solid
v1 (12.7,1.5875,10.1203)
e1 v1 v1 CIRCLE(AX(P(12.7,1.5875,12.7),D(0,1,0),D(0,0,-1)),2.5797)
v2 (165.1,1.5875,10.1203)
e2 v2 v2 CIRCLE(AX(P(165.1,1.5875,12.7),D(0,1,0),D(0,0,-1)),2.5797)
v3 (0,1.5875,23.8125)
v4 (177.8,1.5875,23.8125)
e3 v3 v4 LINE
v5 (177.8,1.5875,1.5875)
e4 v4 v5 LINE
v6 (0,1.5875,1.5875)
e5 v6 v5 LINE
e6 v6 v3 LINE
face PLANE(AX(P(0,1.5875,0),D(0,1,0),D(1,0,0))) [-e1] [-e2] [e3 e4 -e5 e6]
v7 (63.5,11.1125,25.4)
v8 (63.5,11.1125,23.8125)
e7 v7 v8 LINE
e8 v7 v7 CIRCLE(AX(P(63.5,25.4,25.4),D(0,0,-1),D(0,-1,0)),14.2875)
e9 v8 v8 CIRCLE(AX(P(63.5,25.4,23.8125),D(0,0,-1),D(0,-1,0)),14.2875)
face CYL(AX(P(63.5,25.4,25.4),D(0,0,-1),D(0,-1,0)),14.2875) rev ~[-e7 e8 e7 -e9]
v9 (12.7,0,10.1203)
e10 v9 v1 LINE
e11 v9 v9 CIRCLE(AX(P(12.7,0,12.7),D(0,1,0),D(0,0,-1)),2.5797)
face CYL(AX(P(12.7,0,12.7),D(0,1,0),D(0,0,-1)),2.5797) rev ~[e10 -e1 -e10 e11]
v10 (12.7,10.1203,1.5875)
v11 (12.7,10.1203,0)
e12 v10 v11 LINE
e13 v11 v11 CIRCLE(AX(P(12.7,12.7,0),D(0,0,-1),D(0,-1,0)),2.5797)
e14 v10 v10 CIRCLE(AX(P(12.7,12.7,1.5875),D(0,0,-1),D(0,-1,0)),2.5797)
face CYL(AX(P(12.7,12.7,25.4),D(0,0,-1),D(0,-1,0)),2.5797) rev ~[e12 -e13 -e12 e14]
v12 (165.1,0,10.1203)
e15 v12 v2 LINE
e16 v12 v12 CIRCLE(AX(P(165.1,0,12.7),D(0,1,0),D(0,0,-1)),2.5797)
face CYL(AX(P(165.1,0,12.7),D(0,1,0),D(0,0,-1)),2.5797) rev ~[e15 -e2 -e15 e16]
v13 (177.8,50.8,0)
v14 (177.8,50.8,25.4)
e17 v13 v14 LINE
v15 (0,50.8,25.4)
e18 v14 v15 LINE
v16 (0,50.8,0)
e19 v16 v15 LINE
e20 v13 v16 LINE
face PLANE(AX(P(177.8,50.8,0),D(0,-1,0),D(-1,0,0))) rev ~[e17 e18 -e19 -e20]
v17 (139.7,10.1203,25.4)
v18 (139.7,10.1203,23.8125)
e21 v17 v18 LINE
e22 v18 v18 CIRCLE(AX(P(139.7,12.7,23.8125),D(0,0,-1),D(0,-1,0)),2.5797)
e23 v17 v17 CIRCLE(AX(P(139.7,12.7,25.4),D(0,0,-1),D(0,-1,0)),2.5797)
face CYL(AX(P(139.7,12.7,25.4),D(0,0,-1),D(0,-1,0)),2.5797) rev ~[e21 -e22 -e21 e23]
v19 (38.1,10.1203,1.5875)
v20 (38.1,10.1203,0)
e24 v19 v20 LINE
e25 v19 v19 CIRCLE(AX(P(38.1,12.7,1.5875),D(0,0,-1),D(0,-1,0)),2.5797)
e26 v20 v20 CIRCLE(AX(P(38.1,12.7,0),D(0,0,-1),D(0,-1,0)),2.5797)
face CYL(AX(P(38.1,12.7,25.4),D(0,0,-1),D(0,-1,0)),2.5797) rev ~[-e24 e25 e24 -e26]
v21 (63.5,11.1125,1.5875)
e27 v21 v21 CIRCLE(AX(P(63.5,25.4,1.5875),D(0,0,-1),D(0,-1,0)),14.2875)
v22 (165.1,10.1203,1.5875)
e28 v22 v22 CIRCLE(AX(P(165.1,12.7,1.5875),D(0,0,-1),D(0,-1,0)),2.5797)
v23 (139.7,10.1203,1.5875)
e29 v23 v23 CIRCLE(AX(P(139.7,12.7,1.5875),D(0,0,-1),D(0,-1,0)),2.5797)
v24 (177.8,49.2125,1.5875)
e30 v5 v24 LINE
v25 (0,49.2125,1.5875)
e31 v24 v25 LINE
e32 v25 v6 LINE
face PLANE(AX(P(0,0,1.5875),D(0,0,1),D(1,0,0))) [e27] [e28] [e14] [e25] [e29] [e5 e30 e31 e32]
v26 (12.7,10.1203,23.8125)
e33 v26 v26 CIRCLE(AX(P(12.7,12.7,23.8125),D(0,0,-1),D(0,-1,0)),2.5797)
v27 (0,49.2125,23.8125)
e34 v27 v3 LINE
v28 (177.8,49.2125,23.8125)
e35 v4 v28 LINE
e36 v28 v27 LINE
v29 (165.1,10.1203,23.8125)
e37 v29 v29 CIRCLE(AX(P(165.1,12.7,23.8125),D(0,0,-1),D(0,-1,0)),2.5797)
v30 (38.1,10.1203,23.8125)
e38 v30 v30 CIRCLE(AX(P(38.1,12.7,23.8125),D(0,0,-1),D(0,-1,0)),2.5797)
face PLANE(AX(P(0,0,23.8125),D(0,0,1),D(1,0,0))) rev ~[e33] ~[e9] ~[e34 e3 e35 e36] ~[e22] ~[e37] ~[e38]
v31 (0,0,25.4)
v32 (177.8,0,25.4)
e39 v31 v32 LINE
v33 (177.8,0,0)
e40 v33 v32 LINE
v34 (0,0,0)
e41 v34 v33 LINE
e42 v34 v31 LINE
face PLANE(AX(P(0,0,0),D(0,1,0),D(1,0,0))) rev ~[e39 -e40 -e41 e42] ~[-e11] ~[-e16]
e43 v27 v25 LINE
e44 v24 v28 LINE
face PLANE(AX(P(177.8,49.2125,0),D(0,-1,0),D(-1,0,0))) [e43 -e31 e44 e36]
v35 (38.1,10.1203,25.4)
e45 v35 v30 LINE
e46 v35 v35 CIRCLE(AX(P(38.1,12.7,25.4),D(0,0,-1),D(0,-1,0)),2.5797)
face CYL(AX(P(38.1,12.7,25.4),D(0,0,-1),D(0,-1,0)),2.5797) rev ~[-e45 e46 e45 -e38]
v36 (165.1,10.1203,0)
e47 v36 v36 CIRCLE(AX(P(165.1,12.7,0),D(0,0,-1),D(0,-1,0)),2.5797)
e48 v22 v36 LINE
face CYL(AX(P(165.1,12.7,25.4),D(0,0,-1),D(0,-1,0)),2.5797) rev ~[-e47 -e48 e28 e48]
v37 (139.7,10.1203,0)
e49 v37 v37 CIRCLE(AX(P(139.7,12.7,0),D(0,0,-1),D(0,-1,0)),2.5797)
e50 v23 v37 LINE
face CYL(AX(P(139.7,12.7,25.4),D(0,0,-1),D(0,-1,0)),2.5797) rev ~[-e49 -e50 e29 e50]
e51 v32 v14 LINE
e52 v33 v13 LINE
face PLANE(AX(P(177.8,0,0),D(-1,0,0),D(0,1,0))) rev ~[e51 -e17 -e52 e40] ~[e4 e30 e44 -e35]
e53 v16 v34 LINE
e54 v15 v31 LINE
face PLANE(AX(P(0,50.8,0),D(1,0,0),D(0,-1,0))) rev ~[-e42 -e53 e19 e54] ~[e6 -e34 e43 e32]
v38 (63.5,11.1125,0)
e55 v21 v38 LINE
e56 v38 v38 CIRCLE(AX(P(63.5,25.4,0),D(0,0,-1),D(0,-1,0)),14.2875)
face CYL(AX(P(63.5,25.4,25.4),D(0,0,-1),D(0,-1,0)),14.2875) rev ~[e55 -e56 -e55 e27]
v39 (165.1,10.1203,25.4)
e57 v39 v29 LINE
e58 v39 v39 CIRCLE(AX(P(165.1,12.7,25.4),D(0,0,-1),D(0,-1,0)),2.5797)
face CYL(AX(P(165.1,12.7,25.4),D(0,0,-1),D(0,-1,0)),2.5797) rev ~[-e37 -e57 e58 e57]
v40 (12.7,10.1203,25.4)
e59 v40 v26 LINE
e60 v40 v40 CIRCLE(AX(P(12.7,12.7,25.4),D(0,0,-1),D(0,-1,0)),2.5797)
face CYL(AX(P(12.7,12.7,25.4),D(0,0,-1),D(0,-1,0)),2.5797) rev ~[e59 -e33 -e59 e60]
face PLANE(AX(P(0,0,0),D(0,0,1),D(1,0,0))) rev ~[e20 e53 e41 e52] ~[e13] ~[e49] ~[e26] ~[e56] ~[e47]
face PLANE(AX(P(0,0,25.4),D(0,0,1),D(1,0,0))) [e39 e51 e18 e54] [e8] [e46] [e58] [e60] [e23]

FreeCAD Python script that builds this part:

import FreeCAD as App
import Part
import Sketcher
from FreeCAD import Vector
Q = App.Units.Quantity


def faces_at(feature, points):
    """Names of the faces that lie closest to the given points."""
    faces = feature.Shape.Faces
    near = lambda p: min(range(len(faces)), key=lambda i: faces[i].distToShape(Part.Vertex(*p))[0])
    return sorted({f"Face{near(p) + 1}" for p in points})

doc = App.newDocument("Part")
body = doc.addObject("PartDesign::Body", "Body")

sketch1 = doc.addObject("Sketcher::SketchObject", "Sketch")
body.addObject(sketch1)
sketch1.AttachmentSupport = (doc.XY_Plane, [""])
sketch1.MapMode = "FlatFace"
sketch1.addGeometry(Part.LineSegment(Vector(0, 51, 0), Vector(0, 0, 0)), False)
sketch1.addGeometry(Part.LineSegment(Vector(0, 0, 0), Vector(178, 0, 0)), False)
sketch1.addGeometry(Part.LineSegment(Vector(178, 0, 0), Vector(178, 51, 0)), False)
sketch1.addGeometry(Part.LineSegment(Vector(178, 51, 0), Vector(0, 51, 0)), False)
sketch1.addConstraint(Sketcher.Constraint("Coincident", 0, 2, 1, 1))
sketch1.addConstraint(Sketcher.Constraint("Coincident", 1, 2, 2, 1))
sketch1.addConstraint(Sketcher.Constraint("Coincident", 2, 2, 3, 1))
sketch1.addConstraint(Sketcher.Constraint("Coincident", 3, 2, 0, 1))
sketch1.addConstraint(Sketcher.Constraint("Vertical", 0))
sketch1.addConstraint(Sketcher.Constraint("Horizontal", 1))
sketch1.addConstraint(Sketcher.Constraint("Vertical", 2))
sketch1.addConstraint(Sketcher.Constraint("Horizontal", 3))
sketch1.addConstraint(Sketcher.Constraint("Coincident", 0, 2, -1, 1))
sketch1.addConstraint(Sketcher.Constraint("DistanceX", 1, 1, 1, 2, Q("7 in")))
sketch1.addConstraint(Sketcher.Constraint("DistanceY", 0, 2, 0, 1, Q("2 in")))
pad1 = doc.addObject("PartDesign::Pad", "Pad")
body.addObject(pad1)
pad1.Profile = sketch1
pad1.Length = Q("1 in")
doc.recompute()

thickness = doc.addObject("PartDesign::Thickness", "Thickness")
body.addObject(thickness)
thickness.Base = (pad1, faces_at(pad1, [(0, 33.867, 16.933), (177.8, 16.933, 16.933)]))
thickness.Value = Q("0.0625 in")
thickness.Reversed = True
thickness.Join = "Intersection"

sketch2 = doc.addObject("Sketcher::SketchObject", "Sketch001")
body.addObject(sketch2)
sketch2.AttachmentSupport = (doc.XY_Plane, [""])
sketch2.MapMode = "FlatFace"
sketch2.AttachmentOffset = App.Placement(Vector(0, 0, 1 * 25.4), App.Rotation())
sketch2.addGeometry(Part.Circle(Vector(64, 25, 0), Vector(0, 0, 1), 14), False)
sketch2.addConstraint(Sketcher.Constraint("Diameter", 0, Q("1.125 in")))
sketch2.addConstraint(Sketcher.Constraint("DistanceY", -1, 1, 0, 3, Q("1 in")))
sketch2.addConstraint(Sketcher.Constraint("DistanceX", -1, 1, 0, 3, Q("2.5 in")))
doc.recompute()
hole = doc.addObject("PartDesign::Hole", "Hole")
body.addObject(hole)
hole.Profile = sketch2
hole.ThreadType = "None"
hole.Diameter = Q("1.125 in")
hole.DepthType = "ThroughAll"

sketch3 = doc.addObject("Sketcher::SketchObject", "Sketch002")
body.addObject(sketch3)
sketch3.AttachmentSupport = (doc.XY_Plane, [""])
sketch3.MapMode = "FlatFace"
sketch3.AttachmentOffset = App.Placement(Vector(0, 0, 1 * 25.4), App.Rotation())
sketch3.addGeometry(Part.Circle(Vector(12.7, 12.7, 0), Vector(0, 0, 1), 2.6), False)
sketch3.addConstraint(Sketcher.Constraint("Diameter", 0, Q("0.203126 in")))
sketch3.addConstraint(Sketcher.Constraint("DistanceX", -1, 1, 0, 3, Q("0.5 in")))
sketch3.addConstraint(Sketcher.Constraint("DistanceY", -1, 1, 0, 3, Q("0.5 in")))
doc.recompute()
hole2 = doc.addObject("PartDesign::Hole", "Hole001")
body.addObject(hole2)
hole2.Profile = sketch3
hole2.ThreadType = "None"
hole2.Diameter = Q("0.203126 in")
hole2.DepthType = "ThroughAll"

sketch4 = doc.addObject("Sketcher::SketchObject", "Sketch003")
body.addObject(sketch4)
sketch4.AttachmentSupport = (doc.XY_Plane, [""])
sketch4.MapMode = "FlatFace"
sketch4.AttachmentOffset = App.Placement(Vector(0, 0, 1 * 25.4), App.Rotation())
sketch4.addGeometry(Part.Circle(Vector(38.1, 12.7, 0), Vector(0, 0, 1), 2.6), False)
sketch4.addConstraint(Sketcher.Constraint("Diameter", 0, Q("0.203126 in")))
sketch4.addConstraint(Sketcher.Constraint("DistanceX", -1, 1, 0, 3, Q("1.5 in")))
sketch4.addConstraint(Sketcher.Constraint("DistanceY", -1, 1, 0, 3, Q("0.5 in")))
doc.recompute()
hole3 = doc.addObject("PartDesign::Hole", "Hole002")
body.addObject(hole3)
hole3.Profile = sketch4
hole3.ThreadType = "None"
hole3.Diameter = Q("0.203126 in")
hole3.DepthType = "ThroughAll"

sketch5 = doc.addObject("Sketcher::SketchObject", "Sketch004")
body.addObject(sketch5)
sketch5.AttachmentSupport = (doc.XY_Plane, [""])
sketch5.MapMode = "FlatFace"
sketch5.AttachmentOffset = App.Placement(Vector(0, 0, 1 * 25.4), App.Rotation())
sketch5.addGeometry(Part.Circle(Vector(165.1, 12.7, 0), Vector(0, 0, 1), 2.6), False)
sketch5.addConstraint(Sketcher.Constraint("Diameter", 0, Q("0.203126 in")))
sketch5.addConstraint(Sketcher.Constraint("DistanceX", -1, 1, 0, 3, Q("6.5 in")))
sketch5.addConstraint(Sketcher.Constraint("DistanceY", -1, 1, 0, 3, Q("0.5 in")))
doc.recompute()
hole4 = doc.addObject("PartDesign::Hole", "Hole003")
body.addObject(hole4)
hole4.Profile = sketch5
hole4.ThreadType = "None"
hole4.Diameter = Q("0.203126 in")
hole4.DepthType = "ThroughAll"

sketch6 = doc.addObject("Sketcher::SketchObject", "Sketch005")
body.addObject(sketch6)
sketch6.AttachmentSupport = (doc.XY_Plane, [""])
sketch6.MapMode = "FlatFace"
sketch6.AttachmentOffset = App.Placement(Vector(0, 0, 1 * 25.4), App.Rotation())
sketch6.addGeometry(Part.Circle(Vector(139.7, 12.7, 0), Vector(0, 0, 1), 2.6), False)
sketch6.addConstraint(Sketcher.Constraint("Diameter", 0, Q("0.203126 in")))
sketch6.addConstraint(Sketcher.Constraint("DistanceX", -1, 1, 0, 3, Q("5.5 in")))
sketch6.addConstraint(Sketcher.Constraint("DistanceY", -1, 1, 0, 3, Q("0.5 in")))
doc.recompute()
hole5 = doc.addObject("PartDesign::Hole", "Hole004")
body.addObject(hole5)
hole5.Profile = sketch6
hole5.ThreadType = "None"
hole5.Diameter = Q("0.203126 in")
hole5.DepthType = "ThroughAll"

sketch7 = doc.addObject("Sketcher::SketchObject", "Sketch006")
body.addObject(sketch7)
sketch7.AttachmentSupport = (doc.XZ_Plane, [""])
sketch7.MapMode = "FlatFace"
sketch7.addGeometry(Part.Circle(Vector(12.7, 12.7, 0), Vector(0, 0, 1), 2.6), False)
sketch7.addConstraint(Sketcher.Constraint("Diameter", 0, Q("0.203126 in")))
sketch7.addConstraint(Sketcher.Constraint("DistanceX", -1, 1, 0, 3, Q("0.5 in")))
sketch7.addConstraint(Sketcher.Constraint("DistanceY", -1, 1, 0, 3, Q("0.5 in")))
doc.recompute()
hole6 = doc.addObject("PartDesign::Hole", "Hole005")
body.addObject(hole6)
hole6.Profile = sketch7
hole6.ThreadType = "None"
hole6.Diameter = Q("0.203126 in")
hole6.DepthType = "Dimension"
hole6.Depth = Q("0.0625 in")
hole6.DrillPoint = "Angled"
hole6.DrillPointAngle = 118

sketch8 = doc.addObject("Sketcher::SketchObject", "Sketch007")
body.addObject(sketch8)
sketch8.AttachmentSupport = (doc.XZ_Plane, [""])
sketch8.MapMode = "FlatFace"
sketch8.addGeometry(Part.Circle(Vector(165.1, 12.7, 0), Vector(0, 0, 1), 2.6), False)
sketch8.addConstraint(Sketcher.Constraint("Diameter", 0, Q("0.203126 in")))
sketch8.addConstraint(Sketcher.Constraint("DistanceX", -1, 1, 0, 3, Q("6.5 in")))
sketch8.addConstraint(Sketcher.Constraint("DistanceY", -1, 1, 0, 3, Q("0.5 in")))
doc.recompute()
hole7 = doc.addObject("PartDesign::Hole", "Hole006")
body.addObject(hole7)
hole7.Profile = sketch8
hole7.ThreadType = "None"
hole7.Diameter = Q("0.203126 in")
hole7.DepthType = "Dimension"
hole7.Depth = Q("0.125 in")
hole7.DrillPoint = "Angled"
hole7.DrillPointAngle = 118

doc.recompute()
